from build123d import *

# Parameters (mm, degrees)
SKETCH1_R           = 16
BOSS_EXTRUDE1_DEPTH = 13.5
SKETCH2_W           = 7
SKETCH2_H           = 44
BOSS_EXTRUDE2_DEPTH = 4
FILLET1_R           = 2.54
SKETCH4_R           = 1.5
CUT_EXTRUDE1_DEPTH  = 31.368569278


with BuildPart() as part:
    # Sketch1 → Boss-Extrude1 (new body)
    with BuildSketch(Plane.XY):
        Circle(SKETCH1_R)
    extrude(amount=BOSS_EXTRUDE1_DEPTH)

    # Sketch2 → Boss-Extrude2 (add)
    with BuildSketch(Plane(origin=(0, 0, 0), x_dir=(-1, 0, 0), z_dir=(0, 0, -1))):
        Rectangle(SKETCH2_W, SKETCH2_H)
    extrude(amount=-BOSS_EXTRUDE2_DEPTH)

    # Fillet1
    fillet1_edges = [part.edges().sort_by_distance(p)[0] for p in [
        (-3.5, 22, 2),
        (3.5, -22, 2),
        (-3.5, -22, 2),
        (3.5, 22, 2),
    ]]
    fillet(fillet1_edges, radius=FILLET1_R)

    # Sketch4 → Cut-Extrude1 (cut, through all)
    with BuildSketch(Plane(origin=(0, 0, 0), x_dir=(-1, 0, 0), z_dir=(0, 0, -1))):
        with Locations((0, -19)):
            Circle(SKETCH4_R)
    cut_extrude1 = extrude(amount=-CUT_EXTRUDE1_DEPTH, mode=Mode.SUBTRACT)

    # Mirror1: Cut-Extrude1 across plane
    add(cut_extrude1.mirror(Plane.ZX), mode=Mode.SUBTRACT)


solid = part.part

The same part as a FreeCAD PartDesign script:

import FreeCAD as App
import Part
import Sketcher
from FreeCAD import Vector
Q = App.Units.Quantity


def edges_at(feature, points):
    """Names of the edges that pass closest to the given points."""
    edges = feature.Shape.Edges
    near = lambda p: min(range(len(edges)), key=lambda i: edges[i].distToShape(Part.Vertex(*p))[0])
    return sorted({f"Edge{near(p) + 1}" for p in points})

doc = App.newDocument("Part")
params = doc.addObject("Spreadsheet::Sheet", "Params")
for row, (alias, value) in enumerate([
    ("sketch1_diameter", "32 mm"),
    ("pad1_length", "13.5 mm"),
    ("sketch2_width", "7 mm"),
    ("sketch2_height", "44 mm"),
    ("pad2_length", "4 mm"),
    ("fillet_radius", "2.54 mm"),
    ("sketch3_diameter", "3 mm"),
], start=1):
    params.set(f"A{row}", alias)
    params.set(f"B{row}", "=" + value)
    params.setAlias(f"B{row}", alias)

body = doc.addObject("PartDesign::Body", "Body")

# Sketch on XY plane
sketch1 = doc.addObject("Sketcher::SketchObject", "Sketch")
body.addObject(sketch1)
sketch1.AttachmentSupport = (doc.XY_Plane, [""])
sketch1.MapMode = "FlatFace"
sketch1.addGeometry(Part.Circle(Vector(0, 0, 0), Vector(0, 0, 1), 16), False)
sketch1.addConstraint([
    Sketcher.Constraint("Coincident", 0, 3, -1, 1),
    Sketcher.Constraint("Diameter", 0, Q("32 mm")),
])
sketch1.setExpression("Constraints[1]", "Params.sketch1_diameter")
pad1 = doc.addObject("PartDesign::Pad", "Pad")
body.addObject(pad1)
pad1.Profile = sketch1
pad1.setExpression("Length", "Params.pad1_length")

# Sketch on XY plane
sketch2 = doc.addObject("Sketcher::SketchObject", "Sketch001")
body.addObject(sketch2)
sketch2.AttachmentSupport = (doc.XY_Plane, [""])
sketch2.MapMode = "FlatFace"
sketch2.addGeometry([
    Part.LineSegment(Vector(4, 22, 0), Vector(4, -22, 0)),
    Part.LineSegment(Vector(4, -22, 0), Vector(-4, -22, 0)),
    Part.LineSegment(Vector(-4, -22, 0), Vector(-4, 22, 0)),
    Part.LineSegment(Vector(-4, 22, 0), Vector(4, 22, 0)),
], False)
sketch2.addConstraint([
    Sketcher.Constraint("Coincident", 0, 2, 1, 1),
    Sketcher.Constraint("Coincident", 1, 2, 2, 1),
    Sketcher.Constraint("Coincident", 2, 2, 3, 1),
    Sketcher.Constraint("Coincident", 3, 2, 0, 1),
    Sketcher.Constraint("Vertical", 0),
    Sketcher.Constraint("Horizontal", 1),
    Sketcher.Constraint("Vertical", 2),
    Sketcher.Constraint("Horizontal", 3),
    Sketcher.Constraint("Symmetric", 0, 2, 2, 2, -1, 1),
    Sketcher.Constraint("DistanceX", 1, 2, 1, 1, Q("7 mm")),
    Sketcher.Constraint("DistanceY", 0, 2, 0, 1, Q("44 mm")),
])
sketch2.setExpression("Constraints[9]", "Params.sketch2_width")
sketch2.setExpression("Constraints[10]", "Params.sketch2_height")
pad2 = doc.addObject("PartDesign::Pad", "Pad001")
body.addObject(pad2)
pad2.Profile = sketch2
pad2.setExpression("Length", "Params.pad2_length")
doc.recompute()

fillet = doc.addObject("PartDesign::Fillet", "Fillet")
body.addObject(fillet)
fillet.Base = (pad2, edges_at(pad2, [
    (-3.5, 22, 2),
    (3.5, -22, 2),
    (-3.5, -22, 2),
    (3.5, 22, 2),
]))
fillet.setExpression("Radius", "Params.fillet_radius")

# Sketch on XY plane
sketch3 = doc.addObject("Sketcher::SketchObject", "Sketch002")
body.addObject(sketch3)
sketch3.AttachmentSupport = (doc.XY_Plane, [""])
sketch3.MapMode = "FlatFace"
sketch3.addGeometry(Part.Circle(Vector(0, -19, 0), Vector(0, 0, 1), 1.5), False)
sketch3.addConstraint([
    Sketcher.Constraint("PointOnObject", 0, 3, -2),
    Sketcher.Constraint("Diameter", 0, Q("3 mm")),
    Sketcher.Constraint("DistanceY", 0, 3, -1, 1, Q("19 mm")),
])
sketch3.setExpression("Constraints[1]", "Params.sketch3_diameter")
pocket1 = doc.addObject("PartDesign::Pocket", "Pocket")
body.addObject(pocket1)
pocket1.Profile = sketch3
pocket1.Type = "ThroughAll"
pocket1.Reversed = True
doc.recompute()

mirrored = doc.addObject("PartDesign::Mirrored", "Mirrored")
body.addObject(mirrored)
mirrored.Originals = [pocket1]
mirrored.MirrorPlane = (doc.XZ_Plane, [""])
body.Tip = mirrored

doc.recompute()
